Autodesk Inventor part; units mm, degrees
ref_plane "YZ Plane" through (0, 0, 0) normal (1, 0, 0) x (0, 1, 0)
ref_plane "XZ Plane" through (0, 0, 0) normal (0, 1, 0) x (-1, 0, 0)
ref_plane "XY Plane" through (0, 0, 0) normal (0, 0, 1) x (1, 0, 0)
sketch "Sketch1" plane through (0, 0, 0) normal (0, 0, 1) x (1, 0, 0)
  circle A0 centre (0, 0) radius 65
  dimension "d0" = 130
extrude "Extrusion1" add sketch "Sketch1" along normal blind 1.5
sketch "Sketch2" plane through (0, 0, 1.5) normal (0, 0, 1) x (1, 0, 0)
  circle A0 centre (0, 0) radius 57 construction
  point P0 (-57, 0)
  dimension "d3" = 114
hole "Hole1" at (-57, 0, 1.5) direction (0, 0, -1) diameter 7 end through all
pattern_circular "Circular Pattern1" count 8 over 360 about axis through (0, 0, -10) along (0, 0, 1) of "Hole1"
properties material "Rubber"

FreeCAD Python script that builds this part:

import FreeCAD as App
import Part
import Sketcher

doc = App.newDocument("Part")
params = doc.addObject("Spreadsheet::Sheet", "Params")
for row, (alias, value) in enumerate([
    ("sketch1_diameter", "130 mm"),
    ("pad1_length", "1.5 mm"),
    ("sketch2_diameter", "7 mm"),
    ("hole_diameter", "7 mm"),
], start=1):
    params.set(f"A{row}", alias)
    params.set(f"B{row}", "=" + value)
    params.setAlias(f"B{row}", alias)

body = doc.addObject("PartDesign::Body", "Body")

sketch1 = body.newObject("Sketcher::SketchObject", "Sketch")
sketch1.AttachmentSupport = (doc.getObject("XY_Plane"), [""])
sketch1.MapMode = "FlatFace"
sketch1.addGeometry(Part.Circle(App.Vector(0, 0, 0), App.Vector(0, 0, 1), 65), False)
sketch1.addConstraint([
    Sketcher.Constraint("Coincident", 0, 3, -1, 1),
    Sketcher.Constraint("Diameter", 0, 130.0),
])
sketch1.setExpression("Constraints[1]", "Params.sketch1_diameter")
pad1 = body.newObject("PartDesign::Pad", "Pad")
pad1.Profile = sketch1
pad1.setExpression("Length", "Params.pad1_length")

sketch2 = body.newObject("Sketcher::SketchObject", "Sketch001")
sketch2.AttachmentSupport = (doc.getObject("XY_Plane"), [""])
sketch2.MapMode = "FlatFace"
sketch2.AttachmentOffset = App.Placement(App.Vector(0, 0, 1.5), App.Rotation())
sketch2.addGeometry(Part.Circle(App.Vector(-57, 0, 0), App.Vector(0, 0, 1), 3.5), False)
sketch2.addConstraint([
    Sketcher.Constraint("PointOnObject", 0, 3, -1),
    Sketcher.Constraint("Diameter", 0, 7.0),
    Sketcher.Constraint("DistanceX", 0, 3, -1, 1, 57.0),
])
sketch2.setExpression("Constraints[1]", "Params.sketch2_diameter")
doc.recompute()
hole = body.newObject("PartDesign::Hole", "Hole")
hole.Profile = sketch2
hole.ThreadType = "None"
hole.setExpression("Diameter", "Params.hole_diameter")
hole.DepthType = "ThroughAll"
doc.recompute()

polarpattern = body.newObject("PartDesign::PolarPattern", "PolarPattern")
polarpattern.Originals = [hole]
polarpattern.Axis = (doc.getObject("Z_Axis"), [""])
polarpattern.Angle = 360
polarpattern.Occurrences = 8
body.Tip = polarpattern

doc.recompute()
